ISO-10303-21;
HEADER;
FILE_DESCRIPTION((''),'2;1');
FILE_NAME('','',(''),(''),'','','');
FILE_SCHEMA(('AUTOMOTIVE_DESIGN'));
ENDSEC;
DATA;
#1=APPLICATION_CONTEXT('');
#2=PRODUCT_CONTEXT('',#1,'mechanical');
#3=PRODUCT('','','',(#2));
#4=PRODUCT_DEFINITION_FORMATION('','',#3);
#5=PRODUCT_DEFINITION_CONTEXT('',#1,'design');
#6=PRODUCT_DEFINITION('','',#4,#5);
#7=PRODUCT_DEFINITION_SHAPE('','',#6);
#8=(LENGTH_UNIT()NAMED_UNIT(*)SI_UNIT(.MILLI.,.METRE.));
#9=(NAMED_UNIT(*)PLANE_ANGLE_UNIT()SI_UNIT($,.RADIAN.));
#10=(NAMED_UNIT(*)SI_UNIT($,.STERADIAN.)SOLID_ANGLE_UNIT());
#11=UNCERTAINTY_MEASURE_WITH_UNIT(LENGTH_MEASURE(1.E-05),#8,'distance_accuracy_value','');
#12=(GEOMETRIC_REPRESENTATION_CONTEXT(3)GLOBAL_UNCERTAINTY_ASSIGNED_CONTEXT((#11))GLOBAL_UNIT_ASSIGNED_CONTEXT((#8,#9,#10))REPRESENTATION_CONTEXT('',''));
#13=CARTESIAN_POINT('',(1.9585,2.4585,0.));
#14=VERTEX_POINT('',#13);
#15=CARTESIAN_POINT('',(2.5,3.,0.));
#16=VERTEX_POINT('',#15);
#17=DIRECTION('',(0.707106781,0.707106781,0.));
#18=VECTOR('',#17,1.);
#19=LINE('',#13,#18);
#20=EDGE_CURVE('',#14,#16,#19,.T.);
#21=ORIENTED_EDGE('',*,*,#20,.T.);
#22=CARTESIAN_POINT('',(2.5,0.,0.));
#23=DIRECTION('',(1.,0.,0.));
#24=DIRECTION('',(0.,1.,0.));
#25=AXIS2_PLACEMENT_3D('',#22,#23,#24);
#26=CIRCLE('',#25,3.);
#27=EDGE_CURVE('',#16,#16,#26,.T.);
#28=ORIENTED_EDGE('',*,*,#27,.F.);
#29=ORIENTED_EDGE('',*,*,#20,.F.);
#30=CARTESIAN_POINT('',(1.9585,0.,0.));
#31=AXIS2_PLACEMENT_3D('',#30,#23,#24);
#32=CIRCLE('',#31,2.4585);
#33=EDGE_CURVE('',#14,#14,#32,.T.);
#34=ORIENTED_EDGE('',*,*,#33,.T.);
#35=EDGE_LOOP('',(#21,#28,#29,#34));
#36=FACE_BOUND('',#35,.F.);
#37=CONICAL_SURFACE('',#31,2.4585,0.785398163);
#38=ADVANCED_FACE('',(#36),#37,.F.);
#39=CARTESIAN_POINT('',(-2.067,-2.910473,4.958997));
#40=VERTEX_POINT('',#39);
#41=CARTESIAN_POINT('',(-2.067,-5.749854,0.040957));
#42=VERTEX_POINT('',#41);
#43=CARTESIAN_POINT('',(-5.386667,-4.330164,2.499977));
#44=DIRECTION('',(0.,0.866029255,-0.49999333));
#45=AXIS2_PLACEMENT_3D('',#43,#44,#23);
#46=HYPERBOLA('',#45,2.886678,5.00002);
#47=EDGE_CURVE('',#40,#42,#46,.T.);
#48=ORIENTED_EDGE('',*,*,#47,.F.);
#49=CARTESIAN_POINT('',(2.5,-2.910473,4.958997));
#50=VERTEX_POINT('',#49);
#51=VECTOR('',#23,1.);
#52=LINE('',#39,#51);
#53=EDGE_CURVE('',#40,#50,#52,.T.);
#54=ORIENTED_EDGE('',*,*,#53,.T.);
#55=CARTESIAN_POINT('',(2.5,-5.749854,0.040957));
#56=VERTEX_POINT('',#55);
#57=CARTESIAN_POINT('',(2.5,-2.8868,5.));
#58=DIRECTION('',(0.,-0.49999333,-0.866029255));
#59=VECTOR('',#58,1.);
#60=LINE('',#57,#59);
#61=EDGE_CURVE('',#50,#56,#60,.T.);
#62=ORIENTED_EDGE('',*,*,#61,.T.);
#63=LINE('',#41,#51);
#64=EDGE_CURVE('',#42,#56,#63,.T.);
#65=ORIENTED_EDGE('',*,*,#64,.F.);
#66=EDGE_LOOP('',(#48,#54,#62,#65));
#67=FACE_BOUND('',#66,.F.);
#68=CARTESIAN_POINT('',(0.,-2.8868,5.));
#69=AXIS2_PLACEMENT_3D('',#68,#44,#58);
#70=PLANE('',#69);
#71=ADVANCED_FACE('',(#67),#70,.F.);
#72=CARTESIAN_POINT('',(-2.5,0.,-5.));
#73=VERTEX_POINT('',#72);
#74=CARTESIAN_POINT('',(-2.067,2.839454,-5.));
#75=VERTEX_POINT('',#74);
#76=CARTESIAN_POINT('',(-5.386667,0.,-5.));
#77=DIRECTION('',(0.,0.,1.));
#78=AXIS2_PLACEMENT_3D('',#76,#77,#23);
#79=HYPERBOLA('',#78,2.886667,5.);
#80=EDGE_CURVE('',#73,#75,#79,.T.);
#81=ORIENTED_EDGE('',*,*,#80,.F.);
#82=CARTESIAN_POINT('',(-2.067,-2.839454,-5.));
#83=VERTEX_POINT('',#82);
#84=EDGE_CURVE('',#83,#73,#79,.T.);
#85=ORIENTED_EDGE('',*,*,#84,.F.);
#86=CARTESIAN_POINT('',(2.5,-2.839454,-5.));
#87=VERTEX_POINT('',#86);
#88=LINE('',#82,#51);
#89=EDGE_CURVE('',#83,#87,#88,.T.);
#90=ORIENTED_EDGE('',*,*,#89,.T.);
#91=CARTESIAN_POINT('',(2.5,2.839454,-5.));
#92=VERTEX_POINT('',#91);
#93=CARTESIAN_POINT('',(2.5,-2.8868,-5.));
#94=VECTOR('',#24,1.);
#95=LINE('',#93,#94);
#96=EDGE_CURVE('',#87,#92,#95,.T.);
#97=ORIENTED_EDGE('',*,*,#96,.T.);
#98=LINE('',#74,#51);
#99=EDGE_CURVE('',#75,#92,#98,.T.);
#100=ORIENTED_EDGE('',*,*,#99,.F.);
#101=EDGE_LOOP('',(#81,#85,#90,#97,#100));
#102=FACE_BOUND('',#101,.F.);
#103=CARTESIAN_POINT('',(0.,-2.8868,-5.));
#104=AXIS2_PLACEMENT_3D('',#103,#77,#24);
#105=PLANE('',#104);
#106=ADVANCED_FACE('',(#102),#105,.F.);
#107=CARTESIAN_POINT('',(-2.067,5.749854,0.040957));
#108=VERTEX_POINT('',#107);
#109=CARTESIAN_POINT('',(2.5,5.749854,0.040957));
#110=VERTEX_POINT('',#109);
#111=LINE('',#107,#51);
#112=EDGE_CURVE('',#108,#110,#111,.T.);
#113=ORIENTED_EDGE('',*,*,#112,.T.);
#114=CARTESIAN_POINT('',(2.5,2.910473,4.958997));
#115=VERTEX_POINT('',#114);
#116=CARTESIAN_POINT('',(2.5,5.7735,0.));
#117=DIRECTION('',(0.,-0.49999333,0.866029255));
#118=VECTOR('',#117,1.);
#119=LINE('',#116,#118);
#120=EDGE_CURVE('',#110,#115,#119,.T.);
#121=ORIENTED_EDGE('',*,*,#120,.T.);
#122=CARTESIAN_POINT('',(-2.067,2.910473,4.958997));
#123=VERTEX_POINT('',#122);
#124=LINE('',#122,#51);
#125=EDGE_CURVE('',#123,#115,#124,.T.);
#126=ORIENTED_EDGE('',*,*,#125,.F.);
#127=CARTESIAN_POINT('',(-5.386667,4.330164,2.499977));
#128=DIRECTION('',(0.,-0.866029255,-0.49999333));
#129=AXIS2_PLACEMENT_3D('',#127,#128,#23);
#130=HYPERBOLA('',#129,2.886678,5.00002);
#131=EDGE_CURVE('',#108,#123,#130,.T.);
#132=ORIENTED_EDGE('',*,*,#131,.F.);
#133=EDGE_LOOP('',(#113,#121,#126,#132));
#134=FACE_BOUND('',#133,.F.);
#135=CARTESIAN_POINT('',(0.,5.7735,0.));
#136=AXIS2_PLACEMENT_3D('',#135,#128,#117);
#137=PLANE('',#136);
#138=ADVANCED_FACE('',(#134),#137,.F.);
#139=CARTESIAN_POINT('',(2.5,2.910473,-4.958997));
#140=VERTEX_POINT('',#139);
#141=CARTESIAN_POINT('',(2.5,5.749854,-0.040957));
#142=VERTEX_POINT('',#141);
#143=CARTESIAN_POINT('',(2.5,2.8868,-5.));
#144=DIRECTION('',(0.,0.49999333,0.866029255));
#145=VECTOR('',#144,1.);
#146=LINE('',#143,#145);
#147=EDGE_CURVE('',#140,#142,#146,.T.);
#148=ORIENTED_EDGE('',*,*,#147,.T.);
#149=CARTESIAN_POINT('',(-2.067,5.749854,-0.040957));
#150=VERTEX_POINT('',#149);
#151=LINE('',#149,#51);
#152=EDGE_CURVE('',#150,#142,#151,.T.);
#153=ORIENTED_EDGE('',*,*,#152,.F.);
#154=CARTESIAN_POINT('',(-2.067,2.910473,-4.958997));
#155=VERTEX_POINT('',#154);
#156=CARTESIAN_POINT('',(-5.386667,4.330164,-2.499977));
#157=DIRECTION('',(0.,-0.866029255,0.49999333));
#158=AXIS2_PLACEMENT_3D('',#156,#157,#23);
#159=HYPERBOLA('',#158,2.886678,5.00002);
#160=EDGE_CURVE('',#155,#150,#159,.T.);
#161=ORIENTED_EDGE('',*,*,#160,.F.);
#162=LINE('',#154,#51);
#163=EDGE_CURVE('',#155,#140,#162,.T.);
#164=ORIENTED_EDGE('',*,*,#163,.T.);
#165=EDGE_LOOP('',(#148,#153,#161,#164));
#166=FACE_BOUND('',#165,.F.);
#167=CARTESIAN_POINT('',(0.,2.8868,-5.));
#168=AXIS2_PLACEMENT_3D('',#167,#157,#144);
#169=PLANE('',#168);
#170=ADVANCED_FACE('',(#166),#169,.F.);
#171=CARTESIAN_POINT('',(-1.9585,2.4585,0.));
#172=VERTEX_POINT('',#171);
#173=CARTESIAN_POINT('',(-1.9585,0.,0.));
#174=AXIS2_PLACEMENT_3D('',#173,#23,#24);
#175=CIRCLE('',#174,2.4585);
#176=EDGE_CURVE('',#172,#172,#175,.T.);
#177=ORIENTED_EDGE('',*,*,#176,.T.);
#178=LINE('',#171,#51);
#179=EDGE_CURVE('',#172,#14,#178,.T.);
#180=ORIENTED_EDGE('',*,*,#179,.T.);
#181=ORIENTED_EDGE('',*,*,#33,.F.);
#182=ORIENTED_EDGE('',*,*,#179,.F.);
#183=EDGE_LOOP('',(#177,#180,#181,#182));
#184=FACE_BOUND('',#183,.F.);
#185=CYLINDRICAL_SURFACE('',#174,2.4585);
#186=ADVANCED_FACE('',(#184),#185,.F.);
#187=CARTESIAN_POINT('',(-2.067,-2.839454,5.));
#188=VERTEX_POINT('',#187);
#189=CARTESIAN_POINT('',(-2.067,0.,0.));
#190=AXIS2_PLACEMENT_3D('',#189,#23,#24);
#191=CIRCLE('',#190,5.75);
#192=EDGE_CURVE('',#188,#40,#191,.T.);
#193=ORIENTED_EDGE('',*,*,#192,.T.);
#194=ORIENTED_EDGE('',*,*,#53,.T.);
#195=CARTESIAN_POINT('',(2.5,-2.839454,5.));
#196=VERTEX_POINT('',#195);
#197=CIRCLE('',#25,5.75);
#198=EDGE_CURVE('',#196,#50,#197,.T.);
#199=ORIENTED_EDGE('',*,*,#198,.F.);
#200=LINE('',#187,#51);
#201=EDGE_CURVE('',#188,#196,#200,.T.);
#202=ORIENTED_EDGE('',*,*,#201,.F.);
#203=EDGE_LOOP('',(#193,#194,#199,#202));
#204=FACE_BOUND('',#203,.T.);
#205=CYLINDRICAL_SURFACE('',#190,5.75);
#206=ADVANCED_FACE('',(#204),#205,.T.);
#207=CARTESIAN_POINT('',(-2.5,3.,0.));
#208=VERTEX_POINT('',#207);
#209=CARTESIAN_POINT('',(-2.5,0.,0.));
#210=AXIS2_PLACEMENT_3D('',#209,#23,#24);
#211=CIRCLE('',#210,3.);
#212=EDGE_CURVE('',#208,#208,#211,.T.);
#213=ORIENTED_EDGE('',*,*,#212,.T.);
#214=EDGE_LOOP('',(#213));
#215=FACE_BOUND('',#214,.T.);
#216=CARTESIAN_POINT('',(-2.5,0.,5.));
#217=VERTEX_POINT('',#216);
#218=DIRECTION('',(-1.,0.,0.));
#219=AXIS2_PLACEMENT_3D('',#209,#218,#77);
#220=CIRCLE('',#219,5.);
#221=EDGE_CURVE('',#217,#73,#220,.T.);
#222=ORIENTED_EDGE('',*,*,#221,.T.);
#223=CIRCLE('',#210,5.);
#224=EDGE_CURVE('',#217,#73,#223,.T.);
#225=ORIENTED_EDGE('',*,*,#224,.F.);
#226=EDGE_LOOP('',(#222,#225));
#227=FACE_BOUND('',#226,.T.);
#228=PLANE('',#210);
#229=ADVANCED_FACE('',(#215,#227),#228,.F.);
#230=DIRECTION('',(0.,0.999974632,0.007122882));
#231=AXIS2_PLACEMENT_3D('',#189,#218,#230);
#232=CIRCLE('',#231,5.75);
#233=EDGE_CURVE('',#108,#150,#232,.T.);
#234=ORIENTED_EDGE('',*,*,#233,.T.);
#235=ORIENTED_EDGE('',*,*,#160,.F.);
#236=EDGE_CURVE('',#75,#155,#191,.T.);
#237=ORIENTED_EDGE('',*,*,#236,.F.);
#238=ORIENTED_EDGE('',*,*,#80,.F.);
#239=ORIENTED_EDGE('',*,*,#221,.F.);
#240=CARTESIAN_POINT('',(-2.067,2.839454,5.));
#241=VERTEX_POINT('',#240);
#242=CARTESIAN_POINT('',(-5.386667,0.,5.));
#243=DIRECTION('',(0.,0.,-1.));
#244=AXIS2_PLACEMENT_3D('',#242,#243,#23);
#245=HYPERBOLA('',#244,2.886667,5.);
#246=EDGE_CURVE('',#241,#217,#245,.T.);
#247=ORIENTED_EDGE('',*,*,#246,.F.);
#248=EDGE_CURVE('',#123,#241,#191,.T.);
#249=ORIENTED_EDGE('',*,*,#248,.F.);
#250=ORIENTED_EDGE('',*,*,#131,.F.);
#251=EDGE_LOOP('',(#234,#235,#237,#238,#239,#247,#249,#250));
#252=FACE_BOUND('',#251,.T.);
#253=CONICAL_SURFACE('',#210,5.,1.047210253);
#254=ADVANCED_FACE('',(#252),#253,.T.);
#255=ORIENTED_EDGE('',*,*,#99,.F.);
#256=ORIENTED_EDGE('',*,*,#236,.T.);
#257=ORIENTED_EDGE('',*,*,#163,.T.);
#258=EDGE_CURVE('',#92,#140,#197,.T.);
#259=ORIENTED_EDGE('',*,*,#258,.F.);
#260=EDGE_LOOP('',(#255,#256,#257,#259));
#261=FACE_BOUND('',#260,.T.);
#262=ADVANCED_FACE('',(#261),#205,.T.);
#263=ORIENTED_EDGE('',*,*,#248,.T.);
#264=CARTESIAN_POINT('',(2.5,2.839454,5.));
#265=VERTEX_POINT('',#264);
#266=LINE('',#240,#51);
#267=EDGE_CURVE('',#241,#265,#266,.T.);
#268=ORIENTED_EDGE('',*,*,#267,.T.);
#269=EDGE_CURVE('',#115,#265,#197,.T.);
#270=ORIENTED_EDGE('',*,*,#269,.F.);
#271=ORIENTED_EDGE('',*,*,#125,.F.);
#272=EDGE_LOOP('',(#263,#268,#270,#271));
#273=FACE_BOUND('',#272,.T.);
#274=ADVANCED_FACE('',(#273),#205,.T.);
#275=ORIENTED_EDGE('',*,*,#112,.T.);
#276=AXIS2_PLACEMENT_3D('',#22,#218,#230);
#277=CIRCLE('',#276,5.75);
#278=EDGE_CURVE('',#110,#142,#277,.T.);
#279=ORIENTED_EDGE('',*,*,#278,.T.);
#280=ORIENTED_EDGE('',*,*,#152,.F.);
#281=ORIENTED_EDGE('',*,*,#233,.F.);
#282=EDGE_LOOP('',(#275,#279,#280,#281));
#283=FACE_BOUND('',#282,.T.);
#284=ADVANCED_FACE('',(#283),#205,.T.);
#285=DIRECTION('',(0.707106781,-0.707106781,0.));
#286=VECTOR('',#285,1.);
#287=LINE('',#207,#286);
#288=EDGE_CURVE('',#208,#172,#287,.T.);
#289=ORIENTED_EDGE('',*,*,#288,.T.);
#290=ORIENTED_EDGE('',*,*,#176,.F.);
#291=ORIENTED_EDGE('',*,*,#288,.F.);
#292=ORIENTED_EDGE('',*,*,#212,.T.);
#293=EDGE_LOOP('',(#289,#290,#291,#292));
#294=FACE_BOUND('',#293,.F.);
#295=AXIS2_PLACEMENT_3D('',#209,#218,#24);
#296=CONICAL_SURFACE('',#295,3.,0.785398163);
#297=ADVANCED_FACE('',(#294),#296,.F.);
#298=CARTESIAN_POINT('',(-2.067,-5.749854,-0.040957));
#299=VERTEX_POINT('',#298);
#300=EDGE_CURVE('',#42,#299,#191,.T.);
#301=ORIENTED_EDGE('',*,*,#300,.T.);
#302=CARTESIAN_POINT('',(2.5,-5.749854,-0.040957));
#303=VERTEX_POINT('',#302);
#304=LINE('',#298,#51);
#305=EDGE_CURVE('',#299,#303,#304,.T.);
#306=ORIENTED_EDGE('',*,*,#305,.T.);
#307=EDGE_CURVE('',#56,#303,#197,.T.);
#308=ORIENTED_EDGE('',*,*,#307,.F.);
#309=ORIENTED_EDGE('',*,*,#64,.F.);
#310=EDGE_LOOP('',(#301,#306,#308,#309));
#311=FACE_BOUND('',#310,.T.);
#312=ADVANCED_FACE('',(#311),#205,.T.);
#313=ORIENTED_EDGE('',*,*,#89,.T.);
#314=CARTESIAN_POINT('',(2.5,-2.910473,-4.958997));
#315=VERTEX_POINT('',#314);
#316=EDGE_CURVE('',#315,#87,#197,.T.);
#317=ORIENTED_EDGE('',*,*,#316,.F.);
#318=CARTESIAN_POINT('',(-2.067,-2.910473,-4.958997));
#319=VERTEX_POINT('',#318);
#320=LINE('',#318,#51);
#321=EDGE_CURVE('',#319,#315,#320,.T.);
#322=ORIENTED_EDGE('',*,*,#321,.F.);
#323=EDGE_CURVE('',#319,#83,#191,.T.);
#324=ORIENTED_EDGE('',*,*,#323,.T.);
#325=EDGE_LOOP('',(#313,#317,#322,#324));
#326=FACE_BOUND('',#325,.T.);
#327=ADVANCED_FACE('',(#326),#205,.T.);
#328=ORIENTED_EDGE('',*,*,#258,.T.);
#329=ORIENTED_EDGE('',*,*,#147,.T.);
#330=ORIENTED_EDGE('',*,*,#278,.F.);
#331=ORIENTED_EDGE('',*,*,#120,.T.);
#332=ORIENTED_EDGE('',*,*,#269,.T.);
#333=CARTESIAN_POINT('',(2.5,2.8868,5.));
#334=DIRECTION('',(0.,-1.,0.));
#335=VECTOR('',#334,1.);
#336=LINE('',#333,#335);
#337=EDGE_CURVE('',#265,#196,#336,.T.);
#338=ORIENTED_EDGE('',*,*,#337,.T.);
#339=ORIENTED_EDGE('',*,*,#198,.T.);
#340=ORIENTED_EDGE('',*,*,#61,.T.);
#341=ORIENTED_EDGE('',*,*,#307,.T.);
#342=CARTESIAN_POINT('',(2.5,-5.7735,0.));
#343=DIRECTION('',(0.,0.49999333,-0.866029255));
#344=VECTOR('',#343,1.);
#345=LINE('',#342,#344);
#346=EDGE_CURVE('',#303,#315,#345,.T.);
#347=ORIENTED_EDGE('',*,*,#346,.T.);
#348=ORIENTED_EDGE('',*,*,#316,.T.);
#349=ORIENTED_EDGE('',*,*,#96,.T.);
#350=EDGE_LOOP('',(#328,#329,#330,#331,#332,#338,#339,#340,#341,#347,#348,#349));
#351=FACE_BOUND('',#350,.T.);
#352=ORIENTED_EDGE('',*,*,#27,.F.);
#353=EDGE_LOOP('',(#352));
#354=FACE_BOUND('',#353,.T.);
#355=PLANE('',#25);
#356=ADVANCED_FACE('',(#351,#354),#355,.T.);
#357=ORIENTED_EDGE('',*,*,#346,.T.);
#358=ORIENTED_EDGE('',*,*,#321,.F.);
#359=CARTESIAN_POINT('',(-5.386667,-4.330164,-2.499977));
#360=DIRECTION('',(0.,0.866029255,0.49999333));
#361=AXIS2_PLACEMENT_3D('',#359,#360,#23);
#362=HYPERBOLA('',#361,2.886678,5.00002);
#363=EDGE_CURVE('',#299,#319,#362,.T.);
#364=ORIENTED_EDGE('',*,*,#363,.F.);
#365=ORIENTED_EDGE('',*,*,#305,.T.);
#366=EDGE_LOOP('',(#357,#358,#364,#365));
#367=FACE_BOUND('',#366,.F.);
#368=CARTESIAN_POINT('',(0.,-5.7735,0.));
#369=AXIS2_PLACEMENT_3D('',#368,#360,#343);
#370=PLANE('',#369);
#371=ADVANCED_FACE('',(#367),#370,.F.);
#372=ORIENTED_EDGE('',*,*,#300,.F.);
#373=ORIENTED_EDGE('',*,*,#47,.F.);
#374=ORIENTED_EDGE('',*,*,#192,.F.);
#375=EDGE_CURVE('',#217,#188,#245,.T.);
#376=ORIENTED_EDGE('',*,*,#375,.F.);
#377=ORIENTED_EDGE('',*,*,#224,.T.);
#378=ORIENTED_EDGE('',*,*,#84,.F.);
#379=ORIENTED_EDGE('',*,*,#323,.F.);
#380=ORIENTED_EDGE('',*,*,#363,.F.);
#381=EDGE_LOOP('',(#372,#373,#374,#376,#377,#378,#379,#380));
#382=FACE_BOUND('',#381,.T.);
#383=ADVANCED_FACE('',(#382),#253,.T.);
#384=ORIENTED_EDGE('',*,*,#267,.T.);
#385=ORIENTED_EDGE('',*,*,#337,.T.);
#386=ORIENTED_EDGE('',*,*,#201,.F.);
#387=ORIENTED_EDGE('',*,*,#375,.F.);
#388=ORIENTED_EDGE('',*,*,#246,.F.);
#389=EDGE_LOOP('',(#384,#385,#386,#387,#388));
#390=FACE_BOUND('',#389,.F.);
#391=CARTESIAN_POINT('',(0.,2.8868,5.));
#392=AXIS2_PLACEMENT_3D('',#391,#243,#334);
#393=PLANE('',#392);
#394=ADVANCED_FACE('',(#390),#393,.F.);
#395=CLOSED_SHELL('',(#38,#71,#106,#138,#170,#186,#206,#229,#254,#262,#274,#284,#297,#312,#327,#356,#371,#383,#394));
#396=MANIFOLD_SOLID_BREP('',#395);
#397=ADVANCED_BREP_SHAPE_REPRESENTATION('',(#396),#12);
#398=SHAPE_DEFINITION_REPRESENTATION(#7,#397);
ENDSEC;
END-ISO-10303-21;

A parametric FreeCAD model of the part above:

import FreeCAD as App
import Part
import Sketcher
Q = App.Units.Quantity

doc = App.newDocument("Part")
body = doc.addObject("PartDesign::Body", "Body")

sketch1 = body.newObject("Sketcher::SketchObject", "Sketch")
sketch1.AttachmentSupport = (doc.getObject("XY_Plane"), [""])
sketch1.MapMode = "FlatFace"
sketch1.addGeometry([
    Part.LineSegment(App.Vector(-2.5, 0, 0), App.Vector(2.5, 0, 0)),
    Part.LineSegment(App.Vector(2.5, 0, 0), App.Vector(2.5, 5.8, 0)),
    Part.LineSegment(App.Vector(2.5, 5.8, 0), App.Vector(-2.1, 5.8, 0)),
    Part.LineSegment(App.Vector(-2.1, 5.8, 0), App.Vector(-2.5, 5, 0)),
    Part.LineSegment(App.Vector(-2.5, 5, 0), App.Vector(-2.5, 0, 0)),
], False)
sketch1.addConstraint([
    Sketcher.Constraint("Coincident", 0, 2, 1, 1),
    Sketcher.Constraint("Coincident", 1, 2, 2, 1),
    Sketcher.Constraint("Coincident", 2, 2, 3, 1),
    Sketcher.Constraint("Coincident", 3, 2, 4, 1),
    Sketcher.Constraint("Coincident", 4, 2, 0, 1),
    Sketcher.Constraint("Horizontal", 0),
    Sketcher.Constraint("Vertical", 1),
    Sketcher.Constraint("Horizontal", 2),
    Sketcher.Constraint("Vertical", 4),
    Sketcher.Constraint("Symmetric", 0, 2, 4, 2, -1, 1),
    Sketcher.Constraint("Equal", 0, 4),
    Sketcher.Constraint("DistanceX", 0, 1, 0, 2, Q("5 mm")),
    Sketcher.Constraint("Angle", 3, Q("-119.9993 deg")),
    Sketcher.Constraint("DistanceY", 1, 1, 1, 2, Q("5.75 mm")),
])
revolution = body.newObject("PartDesign::Revolution", "Revolution")
revolution.Profile = sketch1
revolution.ReferenceAxis = (sketch1, ["H_Axis"])
revolution.Angle = 360

sketch2 = body.newObject("Sketcher::SketchObject", "Sketch001")
sketch2.AttachmentSupport = (doc.getObject("XY_Plane"), [""])
sketch2.MapMode = "FlatFace"
sketch2.addGeometry([
    Part.LineSegment(App.Vector(-2.5, 0, 0), App.Vector(2.5, 0, 0)),
    Part.LineSegment(App.Vector(2.5, 0, 0), App.Vector(2.5, 3, 0)),
    Part.LineSegment(App.Vector(2.5, 3, 0), App.Vector(2, 2.5, 0)),
    Part.LineSegment(App.Vector(2, 2.5, 0), App.Vector(-2, 2.5, 0)),
    Part.LineSegment(App.Vector(-2, 2.5, 0), App.Vector(-2.5, 3, 0)),
    Part.LineSegment(App.Vector(-2.5, 3, 0), App.Vector(-2.5, 0, 0)),
], False)
sketch2.addConstraint([
    Sketcher.Constraint("Coincident", 0, 2, 1, 1),
    Sketcher.Constraint("Coincident", 1, 2, 2, 1),
    Sketcher.Constraint("Coincident", 2, 2, 3, 1),
    Sketcher.Constraint("Coincident", 3, 2, 4, 1),
    Sketcher.Constraint("Coincident", 4, 2, 5, 1),
    Sketcher.Constraint("Coincident", 5, 2, 0, 1),
    Sketcher.Constraint("Horizontal", 0),
    Sketcher.Constraint("Vertical", 1),
    Sketcher.Constraint("Horizontal", 3),
    Sketcher.Constraint("Vertical", 5),
    Sketcher.Constraint("Symmetric", 0, 2, 5, 2, -1, 1),
    Sketcher.Constraint("Perpendicular", 2, 4),
    Sketcher.Constraint("Horizontal", 1, 2, 4, 2),
    Sketcher.Constraint("Equal", 2, 4),
    Sketcher.Constraint("DistanceX", 0, 1, 0, 2, Q("5 mm")),
    Sketcher.Constraint("DistanceY", 1, 1, 1, 2, Q("3 mm")),
    Sketcher.Constraint("DistanceX", 3, 2, 3, 1, Q("3.917 mm")),
])
groove = body.newObject("PartDesign::Groove", "Groove")
groove.Profile = sketch2
groove.ReferenceAxis = (sketch2, ["H_Axis"])
groove.Angle = 360

sketch3 = body.newObject("Sketcher::SketchObject", "Sketch002")
sketch3.AttachmentSupport = (doc.getObject("YZ_Plane"), [""])
sketch3.MapMode = "FlatFace"
sketch3.addGeometry([
    Part.LineSegment(App.Vector(10, 10, 0), App.Vector(-10, 10, 0)),
    Part.LineSegment(App.Vector(-10, 10, 0), App.Vector(-10, -10, 0)),
    Part.LineSegment(App.Vector(-10, -10, 0), App.Vector(10, -10, 0)),
    Part.LineSegment(App.Vector(10, -10, 0), App.Vector(10, 10, 0)),
    Part.LineSegment(App.Vector(-6, 0, 0), App.Vector(-3, 5, 0)),
    Part.LineSegment(App.Vector(-3, 5, 0), App.Vector(3, 5, 0)),
    Part.LineSegment(App.Vector(3, 5, 0), App.Vector(6, 0, 0)),
    Part.LineSegment(App.Vector(6, 0, 0), App.Vector(3, -5, 0)),
    Part.LineSegment(App.Vector(3, -5, 0), App.Vector(-3, -5, 0)),
    Part.LineSegment(App.Vector(-3, -5, 0), App.Vector(-6, 0, 0)),
], False)
sketch3.addConstraint([
    Sketcher.Constraint("Coincident", 0, 2, 1, 1),
    Sketcher.Constraint("Coincident", 1, 2, 2, 1),
    Sketcher.Constraint("Coincident", 2, 2, 3, 1),
    Sketcher.Constraint("Coincident", 3, 2, 0, 1),
    Sketcher.Constraint("Coincident", 4, 2, 5, 1),
    Sketcher.Constraint("Coincident", 5, 2, 6, 1),
    Sketcher.Constraint("Coincident", 6, 2, 7, 1),
    Sketcher.Constraint("Coincident", 7, 2, 8, 1),
    Sketcher.Constraint("Coincident", 8, 2, 9, 1),
    Sketcher.Constraint("Coincident", 9, 2, 4, 1),
    Sketcher.Constraint("Horizontal", 0),
    Sketcher.Constraint("Vertical", 1),
    Sketcher.Constraint("Horizontal", 2),
    Sketcher.Constraint("Vertical", 3),
    Sketcher.Constraint("Horizontal", 5),
    Sketcher.Constraint("Horizontal", 8),
    Sketcher.Constraint("Symmetric", 0, 2, 2, 2, -1, 1),
    Sketcher.Constraint("Symmetric", 4, 2, 7, 2, -1, 1),
    Sketcher.Constraint("Symmetric", 6, 2, 9, 2, -1, 1),
    Sketcher.Constraint("PointOnObject", 6, 2, -1),
    Sketcher.Constraint("Parallel", 6, 9),
    Sketcher.Constraint("Vertical", 5, 2, 7, 2),
    Sketcher.Constraint("Equal", 2, 1),
    Sketcher.Constraint("DistanceX", 0, 2, 0, 1, Q("20 mm")),
    Sketcher.Constraint("Angle", 4, Q("60.0004 deg")),
    Sketcher.Constraint("DistanceY", -1, 1, 4, 2, Q("5 mm")),
    Sketcher.Constraint("DistanceX", 5, 1, 5, 2, Q("5.7736 mm")),
])
pocket1 = body.newObject("PartDesign::Pocket", "Pocket")
pocket1.Profile = sketch3
pocket1.Length = 5
pocket1.Midplane = True

doc.recompute()
